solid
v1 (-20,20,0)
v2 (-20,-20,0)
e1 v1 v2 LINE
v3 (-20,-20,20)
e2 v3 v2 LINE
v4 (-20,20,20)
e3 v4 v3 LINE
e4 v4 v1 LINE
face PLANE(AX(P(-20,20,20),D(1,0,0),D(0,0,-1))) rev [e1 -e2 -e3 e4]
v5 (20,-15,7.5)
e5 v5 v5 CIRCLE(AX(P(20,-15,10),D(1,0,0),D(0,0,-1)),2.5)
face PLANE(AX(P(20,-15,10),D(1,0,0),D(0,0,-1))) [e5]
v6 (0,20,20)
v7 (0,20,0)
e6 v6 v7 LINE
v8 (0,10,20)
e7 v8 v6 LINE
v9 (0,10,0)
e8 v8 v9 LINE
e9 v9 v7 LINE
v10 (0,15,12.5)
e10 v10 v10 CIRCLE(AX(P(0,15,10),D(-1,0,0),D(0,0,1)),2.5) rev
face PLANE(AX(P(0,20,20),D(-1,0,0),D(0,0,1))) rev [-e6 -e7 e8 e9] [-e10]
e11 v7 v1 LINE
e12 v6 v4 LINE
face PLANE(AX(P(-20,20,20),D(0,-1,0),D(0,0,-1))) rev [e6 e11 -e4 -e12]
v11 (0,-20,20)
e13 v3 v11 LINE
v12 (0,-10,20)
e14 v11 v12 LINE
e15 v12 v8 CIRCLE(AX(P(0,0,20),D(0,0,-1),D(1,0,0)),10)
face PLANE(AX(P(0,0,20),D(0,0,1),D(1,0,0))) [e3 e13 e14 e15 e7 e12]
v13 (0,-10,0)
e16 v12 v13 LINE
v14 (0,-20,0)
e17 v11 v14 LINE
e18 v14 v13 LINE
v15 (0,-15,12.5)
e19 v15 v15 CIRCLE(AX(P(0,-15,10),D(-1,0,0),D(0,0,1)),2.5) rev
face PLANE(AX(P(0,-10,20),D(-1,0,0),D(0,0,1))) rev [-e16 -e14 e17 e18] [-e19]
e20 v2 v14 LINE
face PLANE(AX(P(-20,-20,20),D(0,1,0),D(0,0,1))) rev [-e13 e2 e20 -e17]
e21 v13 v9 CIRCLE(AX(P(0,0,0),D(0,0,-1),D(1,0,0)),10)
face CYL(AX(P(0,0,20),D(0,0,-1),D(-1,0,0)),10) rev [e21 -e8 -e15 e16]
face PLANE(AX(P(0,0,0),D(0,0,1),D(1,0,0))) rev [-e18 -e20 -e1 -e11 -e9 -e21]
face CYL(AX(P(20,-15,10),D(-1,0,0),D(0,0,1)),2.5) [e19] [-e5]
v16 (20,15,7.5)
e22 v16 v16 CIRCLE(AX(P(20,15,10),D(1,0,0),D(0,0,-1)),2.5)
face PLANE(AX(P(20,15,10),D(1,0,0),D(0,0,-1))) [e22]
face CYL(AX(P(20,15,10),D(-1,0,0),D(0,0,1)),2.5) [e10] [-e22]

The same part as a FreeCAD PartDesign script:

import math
import FreeCAD as App
import Part
import Sketcher

doc = App.newDocument("Part")
params = doc.addObject("Spreadsheet::Sheet", "Params")
for row, (alias, value) in enumerate([
    ("sketch1_radius", "10 mm"),
    ("sketch1_width", "20 mm"),
    ("sketch1_height", "10 mm"),
    ("pad1_length", "20 mm"),
    ("sketch2_diameter", "5 mm"),
    ("pad2_length", "20 mm"),
], start=1):
    params.set(f"A{row}", alias)
    params.set(f"B{row}", "=" + value)
    params.setAlias(f"B{row}", alias)

body = doc.addObject("PartDesign::Body", "Body")

sketch1 = doc.addObject("Sketcher::SketchObject", "Sketch")
body.addObject(sketch1)
sketch1.AttachmentSupport = (doc.XY_Plane, [""])
sketch1.MapMode = "FlatFace"
sketch1.addGeometry([
    Part.LineSegment(App.Vector(0, 10, 0), App.Vector(0, 20, 0)),
    Part.LineSegment(App.Vector(0, 20, 0), App.Vector(-20, 20, 0)),
    Part.LineSegment(App.Vector(-20, 20, 0), App.Vector(-20, -20, 0)),
    Part.LineSegment(App.Vector(-20, -20, 0), App.Vector(0, -20, 0)),
    Part.LineSegment(App.Vector(0, -20, 0), App.Vector(0, -10, 0)),
    Part.ArcOfCircle(Part.Circle(App.Vector(0, 0, 0), App.Vector(0, 0, 1), 10), math.radians(90), math.radians(270)),
], False)
sketch1.addConstraint([
    Sketcher.Constraint("Coincident", 0, 2, 1, 1),
    Sketcher.Constraint("Coincident", 1, 2, 2, 1),
    Sketcher.Constraint("Coincident", 2, 2, 3, 1),
    Sketcher.Constraint("Coincident", 3, 2, 4, 1),
    Sketcher.Constraint("Coincident", 4, 2, 5, 2),
    Sketcher.Constraint("Coincident", 5, 1, 0, 1),
    Sketcher.Constraint("Vertical", 0),
    Sketcher.Constraint("Horizontal", 1),
    Sketcher.Constraint("Vertical", 2),
    Sketcher.Constraint("Horizontal", 3),
    Sketcher.Constraint("Vertical", 4),
    Sketcher.Constraint("Coincident", 5, 3, -1, 1),
    Sketcher.Constraint("Symmetric", 0, 2, 3, 2, -1, 1),
    Sketcher.Constraint("PointOnObject", 0, 2, -2),
    Sketcher.Constraint("Radius", 5, 10.0),
    Sketcher.Constraint("DistanceX", 1, 2, 1, 1, 20.0),
    Sketcher.Constraint("DistanceY", 0, 1, 0, 2, 10.0),
])
sketch1.setExpression("Constraints[14]", "Params.sketch1_radius")
sketch1.setExpression("Constraints[15]", "Params.sketch1_width")
sketch1.setExpression("Constraints[16]", "Params.sketch1_height")
pad1 = doc.addObject("PartDesign::Pad", "Pad")
body.addObject(pad1)
pad1.Profile = sketch1
pad1.setExpression("Length", "Params.pad1_length")

sketch2 = doc.addObject("Sketcher::SketchObject", "Sketch001")
body.addObject(sketch2)
sketch2.AttachmentSupport = (doc.YZ_Plane, [""])
sketch2.MapMode = "FlatFace"
sketch2.addGeometry([
    Part.Circle(App.Vector(15, 10, 0), App.Vector(0, 0, 1), 2.5),
    Part.Circle(App.Vector(-15, 10, 0), App.Vector(0, 0, 1), 2.5),
], False)
sketch2.addConstraint([
    Sketcher.Constraint("Equal", 0, 1),
    Sketcher.Constraint("Symmetric", 0, 3, 1, 3, -2),
    Sketcher.Constraint("Diameter", 0, 5.0),
    Sketcher.Constraint("DistanceX", -1, 1, 0, 3, 15.0),
    Sketcher.Constraint("DistanceY", -1, 1, 0, 3, 10.0),
])
sketch2.setExpression("Constraints[2]", "Params.sketch2_diameter")
pad2 = doc.addObject("PartDesign::Pad", "Pad001")
body.addObject(pad2)
pad2.Profile = sketch2
pad2.setExpression("Length", "Params.pad2_length")

doc.recompute()
